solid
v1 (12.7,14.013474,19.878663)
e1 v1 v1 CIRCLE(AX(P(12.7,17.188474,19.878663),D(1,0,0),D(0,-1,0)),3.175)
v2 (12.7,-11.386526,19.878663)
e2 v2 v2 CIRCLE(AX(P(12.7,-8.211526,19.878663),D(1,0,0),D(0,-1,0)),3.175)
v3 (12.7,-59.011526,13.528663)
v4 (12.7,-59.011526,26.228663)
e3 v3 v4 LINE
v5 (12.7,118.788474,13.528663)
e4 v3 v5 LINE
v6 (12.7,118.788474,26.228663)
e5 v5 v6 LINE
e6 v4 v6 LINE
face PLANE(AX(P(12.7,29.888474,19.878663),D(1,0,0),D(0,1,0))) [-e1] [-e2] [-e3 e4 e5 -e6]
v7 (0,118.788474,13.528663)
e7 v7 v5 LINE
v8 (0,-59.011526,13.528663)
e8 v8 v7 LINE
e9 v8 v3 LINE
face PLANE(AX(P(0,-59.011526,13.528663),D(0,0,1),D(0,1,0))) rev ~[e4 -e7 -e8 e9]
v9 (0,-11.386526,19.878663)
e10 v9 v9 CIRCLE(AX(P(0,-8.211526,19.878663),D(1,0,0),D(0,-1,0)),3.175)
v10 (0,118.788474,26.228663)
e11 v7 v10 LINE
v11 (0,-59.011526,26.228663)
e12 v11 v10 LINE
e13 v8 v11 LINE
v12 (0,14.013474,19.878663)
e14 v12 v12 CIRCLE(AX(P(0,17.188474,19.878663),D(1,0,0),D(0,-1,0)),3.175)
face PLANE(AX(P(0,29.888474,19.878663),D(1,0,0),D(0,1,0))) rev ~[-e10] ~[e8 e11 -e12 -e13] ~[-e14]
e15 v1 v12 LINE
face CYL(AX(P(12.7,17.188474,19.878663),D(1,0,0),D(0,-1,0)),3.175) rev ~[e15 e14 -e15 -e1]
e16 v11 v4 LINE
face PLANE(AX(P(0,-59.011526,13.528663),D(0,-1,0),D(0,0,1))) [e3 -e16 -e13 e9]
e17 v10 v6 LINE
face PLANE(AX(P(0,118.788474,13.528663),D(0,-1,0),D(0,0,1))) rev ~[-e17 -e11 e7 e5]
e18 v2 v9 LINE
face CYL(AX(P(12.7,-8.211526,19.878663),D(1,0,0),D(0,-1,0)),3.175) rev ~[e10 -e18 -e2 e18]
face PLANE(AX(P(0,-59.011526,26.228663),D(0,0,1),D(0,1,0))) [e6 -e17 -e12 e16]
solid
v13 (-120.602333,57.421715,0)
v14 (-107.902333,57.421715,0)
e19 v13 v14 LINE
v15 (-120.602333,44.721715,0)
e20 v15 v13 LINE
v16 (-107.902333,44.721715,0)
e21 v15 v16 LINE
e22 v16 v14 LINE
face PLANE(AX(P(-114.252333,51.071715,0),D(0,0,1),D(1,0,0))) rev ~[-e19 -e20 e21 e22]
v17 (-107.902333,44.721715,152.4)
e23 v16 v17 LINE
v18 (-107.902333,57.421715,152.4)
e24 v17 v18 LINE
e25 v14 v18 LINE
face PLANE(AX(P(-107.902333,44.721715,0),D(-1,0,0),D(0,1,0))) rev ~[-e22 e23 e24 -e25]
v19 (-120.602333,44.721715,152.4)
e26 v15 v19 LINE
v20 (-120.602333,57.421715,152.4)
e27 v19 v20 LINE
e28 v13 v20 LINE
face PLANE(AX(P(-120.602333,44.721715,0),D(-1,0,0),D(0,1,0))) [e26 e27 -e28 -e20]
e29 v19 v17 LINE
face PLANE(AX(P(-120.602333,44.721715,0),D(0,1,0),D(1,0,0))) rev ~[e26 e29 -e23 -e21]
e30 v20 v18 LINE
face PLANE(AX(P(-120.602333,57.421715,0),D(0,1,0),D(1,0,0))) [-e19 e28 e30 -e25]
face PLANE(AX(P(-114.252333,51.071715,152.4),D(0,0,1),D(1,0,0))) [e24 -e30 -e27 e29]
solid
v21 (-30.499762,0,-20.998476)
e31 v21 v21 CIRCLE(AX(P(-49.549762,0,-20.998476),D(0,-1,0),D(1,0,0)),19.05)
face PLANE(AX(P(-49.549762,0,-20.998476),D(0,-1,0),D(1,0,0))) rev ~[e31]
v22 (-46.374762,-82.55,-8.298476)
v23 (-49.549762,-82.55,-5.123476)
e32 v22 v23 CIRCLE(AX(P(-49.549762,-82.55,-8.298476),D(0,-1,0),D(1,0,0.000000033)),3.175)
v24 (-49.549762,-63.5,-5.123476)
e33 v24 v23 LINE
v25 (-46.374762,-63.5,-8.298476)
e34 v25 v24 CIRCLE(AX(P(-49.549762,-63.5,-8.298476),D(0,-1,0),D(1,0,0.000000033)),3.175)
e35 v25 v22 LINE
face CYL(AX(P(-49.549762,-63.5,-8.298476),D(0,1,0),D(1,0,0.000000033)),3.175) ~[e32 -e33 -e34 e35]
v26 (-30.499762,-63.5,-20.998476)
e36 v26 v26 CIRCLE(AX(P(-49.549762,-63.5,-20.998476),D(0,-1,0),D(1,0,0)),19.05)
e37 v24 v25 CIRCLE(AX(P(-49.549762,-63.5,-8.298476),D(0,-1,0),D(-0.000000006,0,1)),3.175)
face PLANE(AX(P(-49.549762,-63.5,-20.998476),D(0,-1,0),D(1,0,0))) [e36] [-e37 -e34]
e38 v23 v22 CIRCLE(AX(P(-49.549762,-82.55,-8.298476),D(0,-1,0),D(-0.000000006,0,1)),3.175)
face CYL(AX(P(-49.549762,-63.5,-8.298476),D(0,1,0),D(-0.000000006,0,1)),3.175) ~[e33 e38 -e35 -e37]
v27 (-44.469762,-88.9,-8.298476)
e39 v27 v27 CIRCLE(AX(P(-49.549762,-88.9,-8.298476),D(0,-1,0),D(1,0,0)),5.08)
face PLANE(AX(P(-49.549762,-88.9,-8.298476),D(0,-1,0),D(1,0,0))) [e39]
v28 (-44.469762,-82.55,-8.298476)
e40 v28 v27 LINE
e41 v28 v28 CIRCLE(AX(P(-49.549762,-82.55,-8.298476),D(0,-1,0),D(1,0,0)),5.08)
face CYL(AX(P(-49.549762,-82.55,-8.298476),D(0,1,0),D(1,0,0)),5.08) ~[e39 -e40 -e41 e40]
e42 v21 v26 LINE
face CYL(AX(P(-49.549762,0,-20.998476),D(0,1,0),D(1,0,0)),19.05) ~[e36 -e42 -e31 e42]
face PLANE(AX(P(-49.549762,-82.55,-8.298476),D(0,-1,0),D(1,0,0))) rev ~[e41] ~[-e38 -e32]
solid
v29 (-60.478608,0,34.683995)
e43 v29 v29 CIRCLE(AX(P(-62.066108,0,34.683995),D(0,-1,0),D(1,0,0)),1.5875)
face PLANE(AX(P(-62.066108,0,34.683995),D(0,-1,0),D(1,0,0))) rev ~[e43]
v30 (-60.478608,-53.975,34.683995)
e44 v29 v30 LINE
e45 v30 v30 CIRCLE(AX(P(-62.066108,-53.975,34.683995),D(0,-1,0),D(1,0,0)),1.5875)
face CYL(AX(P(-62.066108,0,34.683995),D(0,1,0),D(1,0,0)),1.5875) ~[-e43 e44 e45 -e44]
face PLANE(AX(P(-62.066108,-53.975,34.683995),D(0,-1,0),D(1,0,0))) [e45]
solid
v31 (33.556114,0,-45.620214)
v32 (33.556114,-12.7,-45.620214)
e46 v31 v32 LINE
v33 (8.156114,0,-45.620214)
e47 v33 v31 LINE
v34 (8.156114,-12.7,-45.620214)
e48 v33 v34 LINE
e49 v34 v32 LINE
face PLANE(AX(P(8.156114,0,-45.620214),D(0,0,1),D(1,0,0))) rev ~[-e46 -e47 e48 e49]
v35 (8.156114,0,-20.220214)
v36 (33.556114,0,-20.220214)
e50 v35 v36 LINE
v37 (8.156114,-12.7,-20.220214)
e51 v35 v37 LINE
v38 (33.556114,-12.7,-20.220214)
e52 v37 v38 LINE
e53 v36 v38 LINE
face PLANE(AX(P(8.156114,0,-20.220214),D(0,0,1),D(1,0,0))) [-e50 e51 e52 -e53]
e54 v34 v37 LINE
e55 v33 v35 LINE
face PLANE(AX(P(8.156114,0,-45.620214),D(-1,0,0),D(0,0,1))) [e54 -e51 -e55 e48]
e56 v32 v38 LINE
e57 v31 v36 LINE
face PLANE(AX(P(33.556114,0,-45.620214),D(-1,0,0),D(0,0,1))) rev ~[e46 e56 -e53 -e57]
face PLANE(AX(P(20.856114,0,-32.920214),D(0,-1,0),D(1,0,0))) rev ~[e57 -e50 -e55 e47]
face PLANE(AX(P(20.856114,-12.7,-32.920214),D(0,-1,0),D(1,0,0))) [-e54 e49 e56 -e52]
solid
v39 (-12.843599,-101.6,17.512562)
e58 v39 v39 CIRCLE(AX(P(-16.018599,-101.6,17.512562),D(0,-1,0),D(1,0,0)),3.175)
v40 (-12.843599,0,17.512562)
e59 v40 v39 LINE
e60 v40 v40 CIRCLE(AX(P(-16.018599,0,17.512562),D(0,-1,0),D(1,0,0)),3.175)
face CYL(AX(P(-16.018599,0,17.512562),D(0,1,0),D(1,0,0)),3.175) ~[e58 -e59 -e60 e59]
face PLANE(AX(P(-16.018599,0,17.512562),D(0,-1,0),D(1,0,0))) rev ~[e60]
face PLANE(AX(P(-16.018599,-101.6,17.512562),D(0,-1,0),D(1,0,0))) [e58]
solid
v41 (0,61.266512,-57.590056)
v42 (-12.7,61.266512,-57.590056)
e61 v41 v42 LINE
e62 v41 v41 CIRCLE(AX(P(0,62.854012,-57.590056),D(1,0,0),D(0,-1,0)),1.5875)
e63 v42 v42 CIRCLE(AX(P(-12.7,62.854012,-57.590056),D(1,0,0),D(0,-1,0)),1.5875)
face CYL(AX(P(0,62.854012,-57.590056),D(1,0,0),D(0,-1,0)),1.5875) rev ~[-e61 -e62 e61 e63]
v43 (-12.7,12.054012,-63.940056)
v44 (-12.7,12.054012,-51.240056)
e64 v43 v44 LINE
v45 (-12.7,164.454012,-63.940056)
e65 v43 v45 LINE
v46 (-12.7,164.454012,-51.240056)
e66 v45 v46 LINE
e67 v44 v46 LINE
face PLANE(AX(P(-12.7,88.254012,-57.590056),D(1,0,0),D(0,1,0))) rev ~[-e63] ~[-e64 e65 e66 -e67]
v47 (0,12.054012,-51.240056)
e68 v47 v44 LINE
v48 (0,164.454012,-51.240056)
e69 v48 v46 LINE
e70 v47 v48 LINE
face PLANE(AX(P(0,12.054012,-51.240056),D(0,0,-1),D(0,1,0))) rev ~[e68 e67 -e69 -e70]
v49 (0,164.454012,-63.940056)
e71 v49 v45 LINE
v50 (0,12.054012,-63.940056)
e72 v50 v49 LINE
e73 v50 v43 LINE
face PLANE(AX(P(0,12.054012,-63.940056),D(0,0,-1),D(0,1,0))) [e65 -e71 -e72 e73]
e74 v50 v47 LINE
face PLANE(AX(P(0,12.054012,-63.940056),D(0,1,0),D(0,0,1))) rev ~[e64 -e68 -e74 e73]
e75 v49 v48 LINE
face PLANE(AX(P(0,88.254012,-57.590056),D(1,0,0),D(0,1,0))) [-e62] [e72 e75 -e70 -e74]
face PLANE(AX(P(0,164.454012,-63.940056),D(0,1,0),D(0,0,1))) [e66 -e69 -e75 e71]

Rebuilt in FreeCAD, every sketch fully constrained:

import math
import FreeCAD as App
import Part
import Sketcher
Q = App.Units.Quantity

doc = App.newDocument("Part")
body = doc.addObject("PartDesign::Body", "Body")

sketch1 = doc.addObject("Sketcher::SketchObject", "Sketch")
body.addObject(sketch1)
sketch1.AttachmentSupport = (doc.YZ_Plane, [""])
sketch1.MapMode = "FlatFace"
sketch1.addGeometry(Part.LineSegment(App.Vector(-59.011526, 26.228663, 0), App.Vector(-59.011526, 13.528663, 0)), False)
sketch1.addGeometry(Part.LineSegment(App.Vector(-59.011526, 13.528663, 0), App.Vector(118.788474, 13.528663, 0)), False)
sketch1.addGeometry(Part.LineSegment(App.Vector(118.788474, 13.528663, 0), App.Vector(118.788474, 26.228663, 0)), False)
sketch1.addGeometry(Part.LineSegment(App.Vector(118.788474, 26.228663, 0), App.Vector(-59.011526, 26.228663, 0)), False)
sketch1.addConstraint(Sketcher.Constraint("Coincident", 0, 2, 1, 1))
sketch1.addConstraint(Sketcher.Constraint("Coincident", 1, 2, 2, 1))
sketch1.addConstraint(Sketcher.Constraint("Coincident", 2, 2, 3, 1))
sketch1.addConstraint(Sketcher.Constraint("Coincident", 3, 2, 0, 1))
sketch1.addConstraint(Sketcher.Constraint("Vertical", 0))
sketch1.addConstraint(Sketcher.Constraint("Horizontal", 1))
sketch1.addConstraint(Sketcher.Constraint("Vertical", 2))
sketch1.addConstraint(Sketcher.Constraint("Horizontal", 3))
sketch1.addConstraint(Sketcher.Constraint("DistanceX", 1, 1, 1, 2, Q("7 in")))
sketch1.addConstraint(Sketcher.Constraint("DistanceY", 0, 2, 0, 1, Q("0.5 in")))
sketch1.addConstraint(Sketcher.Constraint("DistanceX", 0, 2, -1, 1, Q("59.011526 mm")))
sketch1.addConstraint(Sketcher.Constraint("DistanceY", -1, 1, 0, 2, Q("13.528663 mm")))
pad1 = doc.addObject("PartDesign::Pad", "Pad")
body.addObject(pad1)
pad1.Profile = sketch1
pad1.Length = Q("0.5 in")

sketch2 = doc.addObject("Sketcher::SketchObject", "Sketch001")
body.addObject(sketch2)
sketch2.AttachmentSupport = (doc.YZ_Plane, [""])
sketch2.MapMode = "FlatFace"
sketch2.AttachmentOffset = App.Placement(App.Vector(0, 0, 0.5 * 25.4), App.Rotation())
sketch2.addGeometry(Part.Circle(App.Vector(-8.211526, 19.878663, 0), App.Vector(0, 0, 1), 3.175), False)
sketch2.addGeometry(Part.Circle(App.Vector(17.188474, 19.878663, 0), App.Vector(0, 0, 1), 3.175), False)
sketch2.addConstraint(Sketcher.Constraint("Equal", 0, 1))
sketch2.addConstraint(Sketcher.Constraint("Horizontal", 0, 3, 1, 3))
sketch2.addConstraint(Sketcher.Constraint("Diameter", 0, Q("0.25 in")))
sketch2.addConstraint(Sketcher.Constraint("DistanceX", 0, 3, 1, 3, Q("1 in")))
sketch2.addConstraint(Sketcher.Constraint("DistanceX", 0, 3, -1, 1, Q("8.211526 mm")))
sketch2.addConstraint(Sketcher.Constraint("DistanceY", -1, 1, 0, 3, Q("19.878663 mm")))
pocket1 = doc.addObject("PartDesign::Pocket", "Pocket")
body.addObject(pocket1)
pocket1.Profile = sketch2
pocket1.Length = Q("1 in")
body2 = doc.addObject("PartDesign::Body", "Body001")

sketch3 = doc.addObject("Sketcher::SketchObject", "Sketch002")
body2.addObject(sketch3)
sketch3.AttachmentSupport = (doc.getObject("XZ_Plane001"), [""])
sketch3.MapMode = "FlatFace"
sketch3.addGeometry(Part.Circle(App.Vector(-16.018599, 17.512562, 0), App.Vector(0, 0, 1), 3.175), False)
sketch3.addConstraint(Sketcher.Constraint("Diameter", 0, Q("0.25 in")))
sketch3.addConstraint(Sketcher.Constraint("DistanceX", 0, 3, -1, 1, Q("16.018599 mm")))
sketch3.addConstraint(Sketcher.Constraint("DistanceY", -1, 1, 0, 3, Q("17.512562 mm")))
pad2 = doc.addObject("PartDesign::Pad", "Pad001")
body2.addObject(pad2)
pad2.Profile = sketch3
pad2.Length = Q("4 in")
body3 = doc.addObject("PartDesign::Body", "Body002")

sketch4 = doc.addObject("Sketcher::SketchObject", "Sketch003")
body3.addObject(sketch4)
sketch4.AttachmentSupport = (doc.getObject("XZ_Plane002"), [""])
sketch4.MapMode = "FlatFace"
sketch4.addGeometry(Part.Circle(App.Vector(-49.549762, -20.998476, 0), App.Vector(0, 0, 1), 19.05), False)
sketch4.addConstraint(Sketcher.Constraint("Diameter", 0, Q("1.5 in")))
sketch4.addConstraint(Sketcher.Constraint("DistanceX", 0, 3, -1, 1, Q("49.549762 mm")))
sketch4.addConstraint(Sketcher.Constraint("DistanceY", 0, 3, -1, 1, Q("20.998476 mm")))
pad3 = doc.addObject("PartDesign::Pad", "Pad002")
body3.addObject(pad3)
pad3.Profile = sketch4
pad3.Length = Q("2.5 in")

sketch5 = doc.addObject("Sketcher::SketchObject", "Sketch004")
body3.addObject(sketch5)
sketch5.AttachmentSupport = (doc.getObject("XZ_Plane002"), [""])
sketch5.MapMode = "FlatFace"
sketch5.AttachmentOffset = App.Placement(App.Vector(0, 0, 2.5 * 25.4), App.Rotation())
sketch5.addGeometry(Part.ArcOfCircle(Part.Circle(App.Vector(-49.549762, -8.298476, 0), App.Vector(0, 0, 1), 3.175), math.radians(90), math.radians(360)), False)
sketch5.addGeometry(Part.ArcOfCircle(Part.Circle(App.Vector(-49.549762, -8.298476, 0), App.Vector(0, 0, 1), 3.175), math.radians(0.000002), math.radians(89.999998)), False)
sketch5.addConstraint(Sketcher.Constraint("Tangent", 0, 1, 1, 2))
sketch5.addConstraint(Sketcher.Constraint("Coincident", 1, 1, 0, 2))
sketch5.addConstraint(Sketcher.Constraint("Horizontal", 0, 3, 1, 1))
sketch5.addConstraint(Sketcher.Constraint("Vertical", 1, 3, 0, 1))
sketch5.addConstraint(Sketcher.Constraint("Radius", 0, Q("0.125 in")))
sketch5.addConstraint(Sketcher.Constraint("DistanceX", 0, 3, -1, 1, Q("49.549762 mm")))
sketch5.addConstraint(Sketcher.Constraint("DistanceY", 0, 3, -1, 1, Q("8.298476 mm")))
pad4 = doc.addObject("PartDesign::Pad", "Pad003")
body3.addObject(pad4)
pad4.Profile = sketch5
pad4.Length = Q("0.75 in")

sketch6 = doc.addObject("Sketcher::SketchObject", "Sketch005")
body3.addObject(sketch6)
sketch6.AttachmentSupport = (doc.getObject("XZ_Plane002"), [""])
sketch6.MapMode = "FlatFace"
sketch6.AttachmentOffset = App.Placement(App.Vector(0, 0, 3.25 * 25.4), App.Rotation())
sketch6.addGeometry(Part.Circle(App.Vector(-49.549762, -8.298476, 0), App.Vector(0, 0, 1), 5.08), False)
sketch6.addConstraint(Sketcher.Constraint("Diameter", 0, Q("0.4 in")))
sketch6.addConstraint(Sketcher.Constraint("DistanceX", 0, 3, -1, 1, Q("49.549762 mm")))
sketch6.addConstraint(Sketcher.Constraint("DistanceY", 0, 3, -1, 1, Q("8.298476 mm")))
pad5 = doc.addObject("PartDesign::Pad", "Pad004")
body3.addObject(pad5)
pad5.Profile = sketch6
pad5.Length = Q("0.25 in")
body4 = doc.addObject("PartDesign::Body", "Body003")

sketch7 = doc.addObject("Sketcher::SketchObject", "Sketch006")
body4.addObject(sketch7)
sketch7.AttachmentSupport = (doc.getObject("XY_Plane003"), [""])
sketch7.MapMode = "FlatFace"
sketch7.addGeometry(Part.LineSegment(App.Vector(-120.602333, 57.421715, 0), App.Vector(-120.602333, 44.721715, 0)), False)
sketch7.addGeometry(Part.LineSegment(App.Vector(-120.602333, 44.721715, 0), App.Vector(-107.902333, 44.721715, 0)), False)
sketch7.addGeometry(Part.LineSegment(App.Vector(-107.902333, 44.721715, 0), App.Vector(-107.902333, 57.421715, 0)), False)
sketch7.addGeometry(Part.LineSegment(App.Vector(-107.902333, 57.421715, 0), App.Vector(-120.602333, 57.421715, 0)), False)
sketch7.addConstraint(Sketcher.Constraint("Coincident", 0, 2, 1, 1))
sketch7.addConstraint(Sketcher.Constraint("Coincident", 1, 2, 2, 1))
sketch7.addConstraint(Sketcher.Constraint("Coincident", 2, 2, 3, 1))
sketch7.addConstraint(Sketcher.Constraint("Coincident", 3, 2, 0, 1))
sketch7.addConstraint(Sketcher.Constraint("Vertical", 0))
sketch7.addConstraint(Sketcher.Constraint("Horizontal", 1))
sketch7.addConstraint(Sketcher.Constraint("Vertical", 2))
sketch7.addConstraint(Sketcher.Constraint("Horizontal", 3))
sketch7.addConstraint(Sketcher.Constraint("Equal", 3, 0))
sketch7.addConstraint(Sketcher.Constraint("DistanceX", 1, 1, 1, 2, Q("0.5 in")))
sketch7.addConstraint(Sketcher.Constraint("DistanceX", 0, 2, -1, 1, Q("120.602333 mm")))
sketch7.addConstraint(Sketcher.Constraint("DistanceY", -1, 1, 0, 2, Q("44.721715 mm")))
pad6 = doc.addObject("PartDesign::Pad", "Pad005")
body4.addObject(pad6)
pad6.Profile = sketch7
pad6.Length = Q("6 in")
body5 = doc.addObject("PartDesign::Body", "Body004")

sketch8 = doc.addObject("Sketcher::SketchObject", "Sketch007")
body5.addObject(sketch8)
sketch8.AttachmentSupport = (doc.getObject("YZ_Plane004"), [""])
sketch8.MapMode = "FlatFace"
sketch8.addGeometry(Part.LineSegment(App.Vector(12.054012, -51.240056, 0), App.Vector(12.054012, -63.940056, 0)), False)
sketch8.addGeometry(Part.LineSegment(App.Vector(12.054012, -63.940056, 0), App.Vector(164.454012, -63.940056, 0)), False)
sketch8.addGeometry(Part.LineSegment(App.Vector(164.454012, -63.940056, 0), App.Vector(164.454012, -51.240056, 0)), False)
sketch8.addGeometry(Part.LineSegment(App.Vector(164.454012, -51.240056, 0), App.Vector(12.054012, -51.240056, 0)), False)
sketch8.addConstraint(Sketcher.Constraint("Coincident", 0, 2, 1, 1))
sketch8.addConstraint(Sketcher.Constraint("Coincident", 1, 2, 2, 1))
sketch8.addConstraint(Sketcher.Constraint("Coincident", 2, 2, 3, 1))
sketch8.addConstraint(Sketcher.Constraint("Coincident", 3, 2, 0, 1))
sketch8.addConstraint(Sketcher.Constraint("Vertical", 0))
sketch8.addConstraint(Sketcher.Constraint("Horizontal", 1))
sketch8.addConstraint(Sketcher.Constraint("Vertical", 2))
sketch8.addConstraint(Sketcher.Constraint("Horizontal", 3))
sketch8.addConstraint(Sketcher.Constraint("DistanceX", 1, 1, 1, 2, Q("6 in")))
sketch8.addConstraint(Sketcher.Constraint("DistanceY", 0, 2, 0, 1, Q("0.5 in")))
sketch8.addConstraint(Sketcher.Constraint("DistanceX", -1, 1, 1, 2, Q("164.454012 mm")))
sketch8.addConstraint(Sketcher.Constraint("DistanceY", 0, 2, -1, 1, Q("63.940056 mm")))
pad7 = doc.addObject("PartDesign::Pad", "Pad006")
body5.addObject(pad7)
pad7.Profile = sketch8
pad7.Length = Q("0.5 in")
pad7.Reversed = True

sketch9 = doc.addObject("Sketcher::SketchObject", "Sketch008")
body5.addObject(sketch9)
sketch9.AttachmentSupport = (doc.getObject("YZ_Plane004"), [""])
sketch9.MapMode = "FlatFace"
sketch9.addGeometry(Part.Circle(App.Vector(62.854012, -57.590056, 0), App.Vector(0, 0, 1), 1.5875), False)
sketch9.addConstraint(Sketcher.Constraint("Diameter", 0, Q("0.125 in")))
sketch9.addConstraint(Sketcher.Constraint("DistanceX", -1, 1, 0, 3, Q("62.854012 mm")))
sketch9.addConstraint(Sketcher.Constraint("DistanceY", 0, 3, -1, 1, Q("57.590056 mm")))
pocket2 = doc.addObject("PartDesign::Pocket", "Pocket001")
body5.addObject(pocket2)
pocket2.Profile = sketch9
pocket2.Length = Q("1 in")
body6 = doc.addObject("PartDesign::Body", "Body005")

sketch10 = doc.addObject("Sketcher::SketchObject", "Sketch009")
body6.addObject(sketch10)
sketch10.AttachmentSupport = (doc.getObject("XZ_Plane005"), [""])
sketch10.MapMode = "FlatFace"
sketch10.addGeometry(Part.Circle(App.Vector(-62.066108, 34.683995, 0), App.Vector(0, 0, 1), 1.5875), False)
sketch10.addConstraint(Sketcher.Constraint("Diameter", 0, Q("0.125 in")))
sketch10.addConstraint(Sketcher.Constraint("DistanceX", 0, 3, -1, 1, Q("62.066108 mm")))
sketch10.addConstraint(Sketcher.Constraint("DistanceY", -1, 1, 0, 3, Q("34.683995 mm")))
pad8 = doc.addObject("PartDesign::Pad", "Pad007")
body6.addObject(pad8)
pad8.Profile = sketch10
pad8.Length = Q("2.125 in")
body7 = doc.addObject("PartDesign::Body", "Body006")

sketch11 = doc.addObject("Sketcher::SketchObject", "Sketch010")
body7.addObject(sketch11)
sketch11.AttachmentSupport = (doc.getObject("XZ_Plane006"), [""])
sketch11.MapMode = "FlatFace"
sketch11.addGeometry(Part.LineSegment(App.Vector(8.156114, -20.220214, 0), App.Vector(8.156114, -45.620214, 0)), False)
sketch11.addGeometry(Part.LineSegment(App.Vector(8.156114, -45.620214, 0), App.Vector(33.556114, -45.620214, 0)), False)
sketch11.addGeometry(Part.LineSegment(App.Vector(33.556114, -45.620214, 0), App.Vector(33.556114, -20.220214, 0)), False)
sketch11.addGeometry(Part.LineSegment(App.Vector(33.556114, -20.220214, 0), App.Vector(8.156114, -20.220214, 0)), False)
sketch11.addConstraint(Sketcher.Constraint("Coincident", 0, 2, 1, 1))
sketch11.addConstraint(Sketcher.Constraint("Coincident", 1, 2, 2, 1))
sketch11.addConstraint(Sketcher.Constraint("Coincident", 2, 2, 3, 1))
sketch11.addConstraint(Sketcher.Constraint("Coincident", 3, 2, 0, 1))
sketch11.addConstraint(Sketcher.Constraint("Vertical", 0))
sketch11.addConstraint(Sketcher.Constraint("Horizontal", 1))
sketch11.addConstraint(Sketcher.Constraint("Vertical", 2))
sketch11.addConstraint(Sketcher.Constraint("Horizontal", 3))
sketch11.addConstraint(Sketcher.Constraint("Equal", 3, 0))
sketch11.addConstraint(Sketcher.Constraint("DistanceX", 1, 1, 1, 2, Q("1 in")))
sketch11.addConstraint(Sketcher.Constraint("DistanceX", -1, 1, 0, 2, Q("8.156114 mm")))
sketch11.addConstraint(Sketcher.Constraint("DistanceY", 0, 2, -1, 1, Q("45.620214 mm")))
pad9 = doc.addObject("PartDesign::Pad", "Pad008")
body7.addObject(pad9)
pad9.Profile = sketch11
pad9.Length = Q("0.5 in")

doc.recompute()
